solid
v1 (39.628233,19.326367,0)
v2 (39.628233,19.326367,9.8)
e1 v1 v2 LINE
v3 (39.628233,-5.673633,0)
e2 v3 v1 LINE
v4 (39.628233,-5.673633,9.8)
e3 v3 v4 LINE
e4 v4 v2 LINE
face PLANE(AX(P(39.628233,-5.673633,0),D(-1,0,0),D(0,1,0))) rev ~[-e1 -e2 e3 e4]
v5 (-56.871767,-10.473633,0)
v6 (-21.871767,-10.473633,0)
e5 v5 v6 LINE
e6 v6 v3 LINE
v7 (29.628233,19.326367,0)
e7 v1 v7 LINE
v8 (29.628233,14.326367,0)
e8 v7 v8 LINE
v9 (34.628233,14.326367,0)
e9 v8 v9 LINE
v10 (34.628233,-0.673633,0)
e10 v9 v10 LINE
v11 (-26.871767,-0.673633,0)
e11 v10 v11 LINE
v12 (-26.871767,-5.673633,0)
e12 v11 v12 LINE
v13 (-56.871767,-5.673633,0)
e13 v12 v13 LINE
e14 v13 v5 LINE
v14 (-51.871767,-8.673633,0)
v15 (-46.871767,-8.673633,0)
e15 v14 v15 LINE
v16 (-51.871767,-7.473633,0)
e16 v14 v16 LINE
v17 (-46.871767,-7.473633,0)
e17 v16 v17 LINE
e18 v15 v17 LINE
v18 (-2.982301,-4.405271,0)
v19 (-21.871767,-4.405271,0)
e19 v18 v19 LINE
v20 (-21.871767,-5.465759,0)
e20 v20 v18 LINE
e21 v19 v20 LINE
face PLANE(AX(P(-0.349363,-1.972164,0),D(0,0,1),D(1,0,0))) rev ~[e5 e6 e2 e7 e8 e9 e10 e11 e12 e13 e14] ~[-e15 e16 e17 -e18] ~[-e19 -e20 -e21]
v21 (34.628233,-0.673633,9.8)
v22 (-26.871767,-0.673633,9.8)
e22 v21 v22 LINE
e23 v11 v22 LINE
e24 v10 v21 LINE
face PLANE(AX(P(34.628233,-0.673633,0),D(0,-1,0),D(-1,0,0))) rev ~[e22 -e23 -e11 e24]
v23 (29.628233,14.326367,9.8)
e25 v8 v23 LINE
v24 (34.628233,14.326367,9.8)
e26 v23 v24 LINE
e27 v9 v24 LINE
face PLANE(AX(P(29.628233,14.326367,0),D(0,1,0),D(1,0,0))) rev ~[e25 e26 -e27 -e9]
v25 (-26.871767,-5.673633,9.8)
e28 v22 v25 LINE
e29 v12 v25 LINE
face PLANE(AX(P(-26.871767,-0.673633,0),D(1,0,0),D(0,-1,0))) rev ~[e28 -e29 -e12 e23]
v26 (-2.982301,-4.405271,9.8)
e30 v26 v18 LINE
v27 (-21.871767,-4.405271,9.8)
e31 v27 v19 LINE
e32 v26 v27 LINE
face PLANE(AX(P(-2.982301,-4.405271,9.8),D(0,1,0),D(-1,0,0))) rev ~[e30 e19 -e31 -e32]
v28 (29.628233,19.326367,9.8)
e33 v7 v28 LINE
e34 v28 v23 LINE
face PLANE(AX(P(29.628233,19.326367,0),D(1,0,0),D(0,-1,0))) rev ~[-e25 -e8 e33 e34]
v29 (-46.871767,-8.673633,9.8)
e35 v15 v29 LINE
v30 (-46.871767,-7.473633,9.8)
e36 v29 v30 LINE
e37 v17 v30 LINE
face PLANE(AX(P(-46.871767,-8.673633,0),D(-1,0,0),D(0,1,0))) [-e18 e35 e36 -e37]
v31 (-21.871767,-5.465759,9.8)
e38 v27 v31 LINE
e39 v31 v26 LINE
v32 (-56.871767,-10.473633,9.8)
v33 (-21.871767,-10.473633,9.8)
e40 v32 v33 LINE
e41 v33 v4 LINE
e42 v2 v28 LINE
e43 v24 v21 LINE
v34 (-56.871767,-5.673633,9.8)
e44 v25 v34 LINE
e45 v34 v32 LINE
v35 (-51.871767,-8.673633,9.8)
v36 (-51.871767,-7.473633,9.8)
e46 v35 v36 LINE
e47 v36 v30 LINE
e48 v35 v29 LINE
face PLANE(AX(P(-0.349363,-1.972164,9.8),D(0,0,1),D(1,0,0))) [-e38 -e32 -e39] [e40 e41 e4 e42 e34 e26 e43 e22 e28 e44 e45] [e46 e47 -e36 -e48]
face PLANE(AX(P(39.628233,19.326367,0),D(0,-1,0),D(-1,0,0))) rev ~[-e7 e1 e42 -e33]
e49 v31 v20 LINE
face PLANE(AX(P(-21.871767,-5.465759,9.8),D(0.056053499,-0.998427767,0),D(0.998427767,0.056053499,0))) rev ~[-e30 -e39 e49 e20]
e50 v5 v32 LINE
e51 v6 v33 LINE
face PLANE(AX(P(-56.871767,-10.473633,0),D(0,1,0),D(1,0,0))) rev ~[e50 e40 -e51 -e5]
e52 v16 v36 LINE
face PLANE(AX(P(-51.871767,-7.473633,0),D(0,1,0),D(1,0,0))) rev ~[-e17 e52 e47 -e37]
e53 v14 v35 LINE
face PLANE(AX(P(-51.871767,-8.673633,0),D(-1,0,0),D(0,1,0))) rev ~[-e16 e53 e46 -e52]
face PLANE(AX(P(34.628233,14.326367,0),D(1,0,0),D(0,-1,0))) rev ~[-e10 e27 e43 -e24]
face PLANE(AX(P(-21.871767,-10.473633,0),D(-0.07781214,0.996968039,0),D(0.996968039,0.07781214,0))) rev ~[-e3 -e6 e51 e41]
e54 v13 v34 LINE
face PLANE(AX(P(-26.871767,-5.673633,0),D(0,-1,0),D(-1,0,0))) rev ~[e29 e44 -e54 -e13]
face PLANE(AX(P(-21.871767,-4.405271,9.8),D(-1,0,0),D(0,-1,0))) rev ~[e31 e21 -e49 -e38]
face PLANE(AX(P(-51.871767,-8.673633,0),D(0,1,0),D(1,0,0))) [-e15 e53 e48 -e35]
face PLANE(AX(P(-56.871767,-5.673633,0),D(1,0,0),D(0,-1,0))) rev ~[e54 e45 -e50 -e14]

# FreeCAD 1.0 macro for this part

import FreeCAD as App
import Part
import Sketcher

V = App.Vector
Q = App.Units.Quantity

doc = App.newDocument("Part")
body = doc.addObject("PartDesign::Body", "Body")

sketch1 = doc.addObject("Sketcher::SketchObject", "Sketch")
body.addObject(sketch1)
sketch1.AttachmentSupport = (doc.XY_Plane, [""])
sketch1.MapMode = "FlatFace"
sketch1.addGeometry(Part.LineSegment(V(-26.9, -5.7, 0), V(-56.9, -5.7, 0)), False)
sketch1.addGeometry(Part.LineSegment(V(-56.9, -5.7, 0), V(-56.9, -10.5, 0)), False)
sketch1.addGeometry(Part.LineSegment(V(-56.9, -10.5, 0), V(-21.9, -10.5, 0)), False)
sketch1.addGeometry(Part.LineSegment(V(-21.9, -10.5, 0), V(39.6, -5.7, 0)), False)
sketch1.addGeometry(Part.LineSegment(V(39.6, -5.7, 0), V(39.6, 19.3, 0)), False)
sketch1.addGeometry(Part.LineSegment(V(39.6, 19.3, 0), V(29.6, 19.3, 0)), False)
sketch1.addGeometry(Part.LineSegment(V(29.6, 19.3, 0), V(29.6, 14.3, 0)), False)
sketch1.addGeometry(Part.LineSegment(V(29.6, 14.3, 0), V(34.6, 14.3, 0)), False)
sketch1.addGeometry(Part.LineSegment(V(34.6, 14.3, 0), V(34.6, -0.7, 0)), False)
sketch1.addGeometry(Part.LineSegment(V(34.6, -0.7, 0), V(-26.9, -0.7, 0)), False)
sketch1.addGeometry(Part.LineSegment(V(-26.9, -0.7, 0), V(-26.9, -5.7, 0)), False)
sketch1.addGeometry(Part.LineSegment(V(-46.9, -8.7, 0), V(-51.9, -8.7, 0)), False)
sketch1.addGeometry(Part.LineSegment(V(-51.9, -8.7, 0), V(-51.9, -7.5, 0)), False)
sketch1.addGeometry(Part.LineSegment(V(-51.9, -7.5, 0), V(-46.9, -7.5, 0)), False)
sketch1.addGeometry(Part.LineSegment(V(-46.9, -7.5, 0), V(-46.9, -8.7, 0)), False)
sketch1.addConstraint(Sketcher.Constraint("Coincident", 0, 2, 1, 1))
sketch1.addConstraint(Sketcher.Constraint("Coincident", 1, 2, 2, 1))
sketch1.addConstraint(Sketcher.Constraint("Coincident", 2, 2, 3, 1))
sketch1.addConstraint(Sketcher.Constraint("Coincident", 3, 2, 4, 1))
sketch1.addConstraint(Sketcher.Constraint("Coincident", 4, 2, 5, 1))
sketch1.addConstraint(Sketcher.Constraint("Coincident", 5, 2, 6, 1))
sketch1.addConstraint(Sketcher.Constraint("Coincident", 6, 2, 7, 1))
sketch1.addConstraint(Sketcher.Constraint("Coincident", 7, 2, 8, 1))
sketch1.addConstraint(Sketcher.Constraint("Coincident", 8, 2, 9, 1))
sketch1.addConstraint(Sketcher.Constraint("Coincident", 9, 2, 10, 1))
sketch1.addConstraint(Sketcher.Constraint("Coincident", 10, 2, 0, 1))
sketch1.addConstraint(Sketcher.Constraint("Coincident", 11, 2, 12, 1))
sketch1.addConstraint(Sketcher.Constraint("Coincident", 12, 2, 13, 1))
sketch1.addConstraint(Sketcher.Constraint("Coincident", 13, 2, 14, 1))
sketch1.addConstraint(Sketcher.Constraint("Coincident", 14, 2, 11, 1))
sketch1.addConstraint(Sketcher.Constraint("Horizontal", 0))
sketch1.addConstraint(Sketcher.Constraint("Vertical", 1))
sketch1.addConstraint(Sketcher.Constraint("Horizontal", 2))
sketch1.addConstraint(Sketcher.Constraint("Vertical", 4))
sketch1.addConstraint(Sketcher.Constraint("Horizontal", 5))
sketch1.addConstraint(Sketcher.Constraint("Vertical", 6))
sketch1.addConstraint(Sketcher.Constraint("Horizontal", 7))
sketch1.addConstraint(Sketcher.Constraint("Vertical", 8))
sketch1.addConstraint(Sketcher.Constraint("Horizontal", 9))
sketch1.addConstraint(Sketcher.Constraint("Vertical", 10))
sketch1.addConstraint(Sketcher.Constraint("Horizontal", 11))
sketch1.addConstraint(Sketcher.Constraint("Vertical", 12))
sketch1.addConstraint(Sketcher.Constraint("Horizontal", 13))
sketch1.addConstraint(Sketcher.Constraint("Vertical", 14))
sketch1.addConstraint(Sketcher.Constraint("Horizontal", 0, 2, 3, 2))
sketch1.addConstraint(Sketcher.Constraint("Equal", 7, 11))
sketch1.addConstraint(Sketcher.Constraint("Equal", 13, 6))
sketch1.addConstraint(Sketcher.Constraint("Equal", 6, 10))
sketch1.addConstraint(Sketcher.Constraint("DistanceX", 0, 2, 0, 1, Q("30 mm")))
sketch1.addConstraint(Sketcher.Constraint("DistanceX", 2, 1, 2, 2, Q("35 mm")))
sketch1.addConstraint(Sketcher.Constraint("DistanceX", 5, 2, 5, 1, Q("10 mm")))
sketch1.addConstraint(Sketcher.Constraint("DistanceX", 7, 1, 7, 2, Q("5 mm")))
sketch1.addConstraint(Sketcher.Constraint("DistanceY", 4, 1, 4, 2, Q("25 mm")))
sketch1.addConstraint(Sketcher.Constraint("DistanceX", 9, 2, 9, 1, Q("61.5 mm")))
sketch1.addConstraint(Sketcher.Constraint("DistanceY", 1, 2, 1, 1, Q("4.8 mm")))
sketch1.addConstraint(Sketcher.Constraint("DistanceY", 12, 1, 12, 2, Q("1.2 mm")))
sketch1.addConstraint(Sketcher.Constraint("DistanceX", 1, 2, 11, 2, Q("5 mm")))
sketch1.addConstraint(Sketcher.Constraint("DistanceY", 11, 2, 0, 2, Q("3 mm")))
sketch1.addConstraint(Sketcher.Constraint("DistanceX", 0, 2, -1, 1, Q("56.871767 mm")))
sketch1.addConstraint(Sketcher.Constraint("DistanceY", 0, 2, -1, 1, Q("5.673633 mm")))
pad1 = doc.addObject("PartDesign::Pad", "Pad")
body.addObject(pad1)
pad1.Profile = sketch1
pad1.Length = 9.8

sketch2 = doc.addObject("Sketcher::SketchObject", "Sketch001")
body.addObject(sketch2)
sketch2.AttachmentSupport = (doc.XY_Plane, [""])
sketch2.MapMode = "FlatFace"
sketch2.AttachmentOffset = App.Placement(V(0, 0, 9.8), App.Rotation())
sketch2.addGeometry(Part.LineSegment(V(-21.9, -4.4, 0), V(-21.9, -5.5, 0)), False)
sketch2.addGeometry(Part.LineSegment(V(-21.9, -5.5, 0), V(-3, -4.4, 0)), False)
sketch2.addGeometry(Part.LineSegment(V(-3, -4.4, 0), V(-21.9, -4.4, 0)), False)
sketch2.addConstraint(Sketcher.Constraint("Coincident", 0, 2, 1, 1))
sketch2.addConstraint(Sketcher.Constraint("Coincident", 1, 2, 2, 1))
sketch2.addConstraint(Sketcher.Constraint("Coincident", 2, 2, 0, 1))
sketch2.addConstraint(Sketcher.Constraint("Vertical", 0))
sketch2.addConstraint(Sketcher.Constraint("Horizontal", 2))
sketch2.addConstraint(Sketcher.Constraint("DistanceY", 0, 2, 0, 1, Q("1.060488 mm")))
sketch2.addConstraint(Sketcher.Constraint("DistanceX", 1, 2, -1, 1, Q("2.982301 mm")))
sketch2.addConstraint(Sketcher.Constraint("Distance", 1, Q("18.919211 mm")))
sketch2.addConstraint(Sketcher.Constraint("DistanceY", 0, 2, -1, 1, Q("5.465759 mm")))
pocket1 = doc.addObject("PartDesign::Pocket", "Pocket")
body.addObject(pocket1)
pocket1.Profile = sketch2
pocket1.Type = "ThroughAll"

doc.recompute()
